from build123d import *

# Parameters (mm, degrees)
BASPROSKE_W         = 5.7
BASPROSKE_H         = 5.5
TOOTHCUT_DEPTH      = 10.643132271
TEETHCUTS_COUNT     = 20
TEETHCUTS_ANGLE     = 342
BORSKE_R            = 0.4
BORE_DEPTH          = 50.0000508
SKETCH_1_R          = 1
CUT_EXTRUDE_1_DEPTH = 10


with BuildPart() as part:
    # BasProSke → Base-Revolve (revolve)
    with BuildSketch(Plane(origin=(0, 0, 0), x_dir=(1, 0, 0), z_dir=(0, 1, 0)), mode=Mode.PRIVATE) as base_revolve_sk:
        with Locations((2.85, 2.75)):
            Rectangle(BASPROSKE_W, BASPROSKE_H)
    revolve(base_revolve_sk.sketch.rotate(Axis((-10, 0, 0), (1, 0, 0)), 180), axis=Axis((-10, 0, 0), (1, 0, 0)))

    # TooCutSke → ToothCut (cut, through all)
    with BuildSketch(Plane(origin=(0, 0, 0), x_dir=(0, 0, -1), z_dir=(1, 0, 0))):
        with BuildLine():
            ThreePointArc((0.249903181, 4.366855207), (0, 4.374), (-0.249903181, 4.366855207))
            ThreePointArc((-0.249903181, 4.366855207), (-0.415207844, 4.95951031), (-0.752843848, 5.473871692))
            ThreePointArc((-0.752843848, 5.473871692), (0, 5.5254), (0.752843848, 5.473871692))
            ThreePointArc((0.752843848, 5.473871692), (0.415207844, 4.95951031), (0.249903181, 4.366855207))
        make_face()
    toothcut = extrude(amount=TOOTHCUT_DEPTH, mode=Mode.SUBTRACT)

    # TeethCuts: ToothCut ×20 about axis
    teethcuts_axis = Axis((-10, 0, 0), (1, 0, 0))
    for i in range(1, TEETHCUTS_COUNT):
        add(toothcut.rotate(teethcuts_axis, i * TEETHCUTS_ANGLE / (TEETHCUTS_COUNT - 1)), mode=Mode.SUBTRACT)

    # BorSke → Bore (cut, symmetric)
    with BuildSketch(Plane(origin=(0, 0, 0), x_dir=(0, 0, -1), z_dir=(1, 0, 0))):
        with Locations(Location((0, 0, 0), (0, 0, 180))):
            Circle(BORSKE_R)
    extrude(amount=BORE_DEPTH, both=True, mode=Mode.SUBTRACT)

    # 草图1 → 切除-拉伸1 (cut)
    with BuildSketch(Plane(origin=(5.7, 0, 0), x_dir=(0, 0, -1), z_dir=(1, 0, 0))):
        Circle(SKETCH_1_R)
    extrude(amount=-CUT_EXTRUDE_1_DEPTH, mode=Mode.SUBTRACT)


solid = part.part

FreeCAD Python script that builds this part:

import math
import FreeCAD as App
import Part
import Sketcher
Q = App.Units.Quantity

doc = App.newDocument("Part")
body = doc.addObject("PartDesign::Body", "Body")

# Sketch on XZ plane
sketch1 = body.newObject("Sketcher::SketchObject", "Sketch")
sketch1.AttachmentSupport = (doc.getObject("XZ_Plane"), [""])
sketch1.MapMode = "FlatFace"
sketch1.addGeometry([
    Part.LineSegment(App.Vector(0, -5.5, 0), App.Vector(0, 0, 0)),
    Part.LineSegment(App.Vector(0, 0, 0), App.Vector(5.7, 0, 0)),
    Part.LineSegment(App.Vector(5.7, 0, 0), App.Vector(5.7, -5.5, 0)),
    Part.LineSegment(App.Vector(5.7, -5.5, 0), App.Vector(0, -5.5, 0)),
], False)
sketch1.addConstraint([
    Sketcher.Constraint("Coincident", 0, 2, 1, 1),
    Sketcher.Constraint("Coincident", 1, 2, 2, 1),
    Sketcher.Constraint("Coincident", 2, 2, 3, 1),
    Sketcher.Constraint("Coincident", 3, 2, 0, 1),
    Sketcher.Constraint("Vertical", 0),
    Sketcher.Constraint("Horizontal", 1),
    Sketcher.Constraint("Vertical", 2),
    Sketcher.Constraint("Horizontal", 3),
    Sketcher.Constraint("Coincident", 0, 2, -1, 1),
    Sketcher.Constraint("DistanceX", 1, 1, 1, 2, Q("5.7 mm")),
    Sketcher.Constraint("DistanceY", 0, 1, 0, 2, Q("5.5 mm")),
])
revolution = body.newObject("PartDesign::Revolution", "Revolution")
revolution.Profile = sketch1
revolution.ReferenceAxis = (sketch1, ["H_Axis"])
revolution.Angle = 360

# Sketch on YZ plane
sketch2 = body.newObject("Sketcher::SketchObject", "Sketch001")
sketch2.AttachmentSupport = (doc.getObject("YZ_Plane"), [""])
sketch2.MapMode = "FlatFace"
sketch2.addGeometry([
    Part.ArcOfCircle(Part.Circle(App.Vector(0, 0, 0), App.Vector(0, 0, 1), 4.374), math.radians(-3.275308), math.radians(3.275308)),
    Part.ArcOfCircle(Part.Circle(App.Vector(4.132243, -2.236095, 0), App.Vector(0, 0, 1), 2), math.radians(47.870067), math.radians(83.263356)),
    Part.ArcOfCircle(Part.Circle(App.Vector(0, 0, 0), App.Vector(0, 0, 1), 5.5254), math.radians(-7.830992), math.radians(7.830992)),
    Part.ArcOfCircle(Part.Circle(App.Vector(4.132243, 2.236095, 0), App.Vector(0, 0, 1), 2), math.radians(-83.263356), math.radians(-47.870067)),
], False)
sketch2.addConstraint([
    Sketcher.Constraint("Coincident", 0, 1, 1, 2),
    Sketcher.Constraint("Coincident", 1, 1, 2, 1),
    Sketcher.Constraint("Coincident", 2, 2, 3, 2),
    Sketcher.Constraint("Coincident", 3, 1, 0, 2),
    Sketcher.Constraint("Coincident", 0, 3, -1, 1),
    Sketcher.Constraint("Coincident", 2, 3, -1, 1),
    Sketcher.Constraint("Equal", 1, 3),
    Sketcher.Constraint("Symmetric", 1, 3, 3, 3, -1),
    Sketcher.Constraint("Radius", 1, Q("2 mm")),
    Sketcher.Constraint("Radius", 0, Q("4.374 mm")),
    Sketcher.Constraint("Radius", 2, Q("5.5254 mm")),
    Sketcher.Constraint("DistanceY", 0, 1, 3, 3, Q("2.485998 mm")),
    Sketcher.Constraint("DistanceX", -1, 1, 1, 1, Q("5.473872 mm")),
])
pocket1 = body.newObject("PartDesign::Pocket", "Pocket")
pocket1.Profile = sketch2
pocket1.Type = "ThroughAll"
pocket1.Reversed = True
doc.recompute()

polarpattern = body.newObject("PartDesign::PolarPattern", "PolarPattern")
polarpattern.Originals = [pocket1]
polarpattern.Axis = (doc.getObject("X_Axis"), [""])
polarpattern.Angle = 360
polarpattern.Occurrences = 20
body.Tip = polarpattern

# Sketch on YZ plane
sketch3 = body.newObject("Sketcher::SketchObject", "Sketch002")
sketch3.AttachmentSupport = (doc.getObject("YZ_Plane"), [""])
sketch3.MapMode = "FlatFace"
sketch3.addGeometry(Part.Circle(App.Vector(0, 0, 0), App.Vector(0, 0, 1), 0.4), False)
sketch3.addConstraint([
    Sketcher.Constraint("Coincident", 0, 3, -1, 1),
    Sketcher.Constraint("Diameter", 0, Q("0.8 mm")),
])
pocket2 = body.newObject("PartDesign::Pocket", "Pocket001")
pocket2.Profile = sketch3
pocket2.Length = 100.000102
pocket2.Midplane = True

# Sketch on YZ plane
sketch4 = body.newObject("Sketcher::SketchObject", "Sketch003")
sketch4.AttachmentSupport = (doc.getObject("YZ_Plane"), [""])
sketch4.MapMode = "FlatFace"
sketch4.AttachmentOffset = App.Placement(App.Vector(0, 0, 5.7), App.Rotation())
sketch4.addGeometry(Part.Circle(App.Vector(0, 0, 0), App.Vector(0, 0, 1), 1), False)
sketch4.addConstraint([
    Sketcher.Constraint("Coincident", 0, 3, -1, 1),
    Sketcher.Constraint("Diameter", 0, Q("2 mm")),
])
pocket3 = body.newObject("PartDesign::Pocket", "Pocket002")
pocket3.Profile = sketch4
pocket3.Length = 10

doc.recompute()
